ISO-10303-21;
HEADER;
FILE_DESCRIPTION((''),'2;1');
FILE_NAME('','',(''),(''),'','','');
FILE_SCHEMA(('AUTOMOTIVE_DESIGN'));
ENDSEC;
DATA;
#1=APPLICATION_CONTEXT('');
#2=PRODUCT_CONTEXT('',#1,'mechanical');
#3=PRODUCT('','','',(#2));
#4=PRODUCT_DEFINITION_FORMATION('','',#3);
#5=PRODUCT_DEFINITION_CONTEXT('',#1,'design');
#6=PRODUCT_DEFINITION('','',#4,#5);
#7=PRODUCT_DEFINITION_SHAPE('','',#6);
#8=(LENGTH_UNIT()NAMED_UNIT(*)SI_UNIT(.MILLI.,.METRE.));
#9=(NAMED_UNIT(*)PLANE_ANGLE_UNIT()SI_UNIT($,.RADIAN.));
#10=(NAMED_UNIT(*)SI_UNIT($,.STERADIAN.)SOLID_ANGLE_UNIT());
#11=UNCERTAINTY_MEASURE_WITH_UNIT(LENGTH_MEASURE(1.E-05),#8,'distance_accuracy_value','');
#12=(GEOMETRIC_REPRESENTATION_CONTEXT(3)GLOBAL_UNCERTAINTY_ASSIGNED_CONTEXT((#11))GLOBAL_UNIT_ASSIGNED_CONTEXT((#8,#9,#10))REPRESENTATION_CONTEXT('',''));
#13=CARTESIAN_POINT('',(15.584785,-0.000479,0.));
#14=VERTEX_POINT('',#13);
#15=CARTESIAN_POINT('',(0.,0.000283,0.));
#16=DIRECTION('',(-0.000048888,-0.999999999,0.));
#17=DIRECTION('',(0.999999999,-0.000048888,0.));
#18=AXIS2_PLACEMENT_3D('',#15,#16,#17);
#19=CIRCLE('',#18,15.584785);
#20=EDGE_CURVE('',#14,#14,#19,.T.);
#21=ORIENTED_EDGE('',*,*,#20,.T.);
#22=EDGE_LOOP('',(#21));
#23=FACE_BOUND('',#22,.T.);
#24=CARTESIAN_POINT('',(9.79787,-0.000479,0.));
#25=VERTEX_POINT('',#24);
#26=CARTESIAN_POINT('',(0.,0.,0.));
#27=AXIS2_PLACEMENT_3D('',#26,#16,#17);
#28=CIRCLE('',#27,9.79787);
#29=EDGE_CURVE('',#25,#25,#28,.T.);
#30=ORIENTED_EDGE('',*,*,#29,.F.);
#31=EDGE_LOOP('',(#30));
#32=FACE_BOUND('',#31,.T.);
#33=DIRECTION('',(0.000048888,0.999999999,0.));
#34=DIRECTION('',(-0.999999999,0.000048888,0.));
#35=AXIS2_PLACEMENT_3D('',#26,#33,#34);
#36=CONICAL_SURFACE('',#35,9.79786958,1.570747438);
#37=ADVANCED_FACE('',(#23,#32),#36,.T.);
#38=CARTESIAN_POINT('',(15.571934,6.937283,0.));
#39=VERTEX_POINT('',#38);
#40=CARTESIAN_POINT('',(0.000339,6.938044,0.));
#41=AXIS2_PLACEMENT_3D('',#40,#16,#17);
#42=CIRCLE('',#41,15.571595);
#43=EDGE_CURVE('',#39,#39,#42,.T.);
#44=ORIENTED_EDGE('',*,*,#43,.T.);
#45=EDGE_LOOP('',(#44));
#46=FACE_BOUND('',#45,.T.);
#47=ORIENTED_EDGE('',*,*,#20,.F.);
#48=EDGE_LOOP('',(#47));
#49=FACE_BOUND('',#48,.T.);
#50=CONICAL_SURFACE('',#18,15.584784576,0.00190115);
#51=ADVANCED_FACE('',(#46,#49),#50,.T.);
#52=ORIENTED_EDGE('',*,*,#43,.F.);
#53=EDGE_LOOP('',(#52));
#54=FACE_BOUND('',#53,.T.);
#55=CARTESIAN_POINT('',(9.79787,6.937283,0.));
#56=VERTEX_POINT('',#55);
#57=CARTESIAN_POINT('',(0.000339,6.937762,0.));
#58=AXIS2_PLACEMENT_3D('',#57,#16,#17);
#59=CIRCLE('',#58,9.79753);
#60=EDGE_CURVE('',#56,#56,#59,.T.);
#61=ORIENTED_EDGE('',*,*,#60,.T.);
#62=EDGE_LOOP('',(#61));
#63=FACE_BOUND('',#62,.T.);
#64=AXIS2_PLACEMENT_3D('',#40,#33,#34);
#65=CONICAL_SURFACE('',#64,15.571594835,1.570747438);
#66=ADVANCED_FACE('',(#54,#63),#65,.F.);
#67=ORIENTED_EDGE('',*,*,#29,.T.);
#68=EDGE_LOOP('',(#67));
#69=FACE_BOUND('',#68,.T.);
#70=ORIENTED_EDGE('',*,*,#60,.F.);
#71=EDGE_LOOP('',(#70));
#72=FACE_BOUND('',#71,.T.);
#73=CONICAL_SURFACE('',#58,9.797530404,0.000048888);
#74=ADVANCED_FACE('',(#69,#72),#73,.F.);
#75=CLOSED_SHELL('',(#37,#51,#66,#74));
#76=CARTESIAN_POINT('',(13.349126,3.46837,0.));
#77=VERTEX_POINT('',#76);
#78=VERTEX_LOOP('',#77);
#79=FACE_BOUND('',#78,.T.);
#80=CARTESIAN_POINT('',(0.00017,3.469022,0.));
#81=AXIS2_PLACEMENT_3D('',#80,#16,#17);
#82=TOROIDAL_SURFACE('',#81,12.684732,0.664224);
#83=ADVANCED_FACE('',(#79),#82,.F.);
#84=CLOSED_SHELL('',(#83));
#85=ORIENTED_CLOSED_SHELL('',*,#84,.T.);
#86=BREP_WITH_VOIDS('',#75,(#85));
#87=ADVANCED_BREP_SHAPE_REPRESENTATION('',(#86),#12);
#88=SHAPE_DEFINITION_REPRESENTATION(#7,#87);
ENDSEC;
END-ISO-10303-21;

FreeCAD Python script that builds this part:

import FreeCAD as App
import Part
import Sketcher
from FreeCAD import Vector
Q = App.Units.Quantity


def add_polygon(sketch, points):
    """Adds a closed chain of lines whose ends are joined by coincident constraints."""
    first, n = sketch.GeometryCount, len(points)
    for a, b in zip(points, points[1:] + points[:1]):
        sketch.addGeometry(Part.LineSegment(App.Vector(*a, 0), App.Vector(*b, 0)), False)
    for i in range(n):
        sketch.addConstraint(Sketcher.Constraint("Coincident", first + i, 2, first + (i + 1) % n, 1))

doc = App.newDocument("Part")
body = doc.addObject("PartDesign::Body", "Body")

sketch1 = doc.addObject("Sketcher::SketchObject", "Sketch")
body.addObject(sketch1)
sketch1.AttachmentSupport = (doc.XY_Plane, [""])
sketch1.MapMode = "FlatFace"
add_polygon(sketch1, [(9.8, 0), (15.6, 0), (15.6, 6.9), (9.8, 6.9)])
sketch1.addGeometry(Part.Circle(Vector(12.7, 3.5, 0), Vector(0, 0, 1), 0.7), False)
sketch1.addGeometry(Part.LineSegment(Vector(0, 0, 0), Vector(0, 6.9, 0)), True)
sketch1.addConstraint(Sketcher.Constraint("Horizontal", 0))
sketch1.addConstraint(Sketcher.Constraint("Horizontal", 2))
sketch1.addConstraint(Sketcher.Constraint("Vertical", 3))
sketch1.addConstraint(Sketcher.Constraint("Coincident", 5, 1, -1, 1))
sketch1.addConstraint(Sketcher.Constraint("Diameter", 4, Q("1.328449 mm")))
sketch1.addConstraint(Sketcher.Constraint("DistanceX", -1, 1, 4, 3, Q("12.684902 mm")))
sketch1.addConstraint(Sketcher.Constraint("DistanceX", 0, 1, 0, 2, Q("5.786915 mm")))
sketch1.addConstraint(Sketcher.Constraint("DistanceX", 2, 2, 2, 1, Q("5.774064 mm")))
sketch1.addConstraint(Sketcher.Constraint("DistanceY", 3, 2, 3, 1, Q("6.937762 mm")))
sketch1.addConstraint(Sketcher.Constraint("DistanceY", 0, 2, -1, 1, Q("0.000479 mm")))
sketch1.addConstraint(Sketcher.Constraint("DistanceX", -1, 1, 2, 2, Q("9.79787 mm")))
sketch1.addConstraint(Sketcher.Constraint("DistanceX", -1, 1, 5, 2, Q("0.000339 mm")))
sketch1.addConstraint(Sketcher.Constraint("DistanceY", 0, 2, 4, 3, Q("3.468881 mm")))
sketch1.addConstraint(Sketcher.Constraint("DistanceY", 2, 2, 5, 2, Q("0.000761 mm")))
revolution = doc.addObject("PartDesign::Revolution", "Revolution")
body.addObject(revolution)
revolution.Profile = sketch1
revolution.ReferenceAxis = (sketch1, ["Axis0"])
revolution.Angle = 360

doc.recompute()
